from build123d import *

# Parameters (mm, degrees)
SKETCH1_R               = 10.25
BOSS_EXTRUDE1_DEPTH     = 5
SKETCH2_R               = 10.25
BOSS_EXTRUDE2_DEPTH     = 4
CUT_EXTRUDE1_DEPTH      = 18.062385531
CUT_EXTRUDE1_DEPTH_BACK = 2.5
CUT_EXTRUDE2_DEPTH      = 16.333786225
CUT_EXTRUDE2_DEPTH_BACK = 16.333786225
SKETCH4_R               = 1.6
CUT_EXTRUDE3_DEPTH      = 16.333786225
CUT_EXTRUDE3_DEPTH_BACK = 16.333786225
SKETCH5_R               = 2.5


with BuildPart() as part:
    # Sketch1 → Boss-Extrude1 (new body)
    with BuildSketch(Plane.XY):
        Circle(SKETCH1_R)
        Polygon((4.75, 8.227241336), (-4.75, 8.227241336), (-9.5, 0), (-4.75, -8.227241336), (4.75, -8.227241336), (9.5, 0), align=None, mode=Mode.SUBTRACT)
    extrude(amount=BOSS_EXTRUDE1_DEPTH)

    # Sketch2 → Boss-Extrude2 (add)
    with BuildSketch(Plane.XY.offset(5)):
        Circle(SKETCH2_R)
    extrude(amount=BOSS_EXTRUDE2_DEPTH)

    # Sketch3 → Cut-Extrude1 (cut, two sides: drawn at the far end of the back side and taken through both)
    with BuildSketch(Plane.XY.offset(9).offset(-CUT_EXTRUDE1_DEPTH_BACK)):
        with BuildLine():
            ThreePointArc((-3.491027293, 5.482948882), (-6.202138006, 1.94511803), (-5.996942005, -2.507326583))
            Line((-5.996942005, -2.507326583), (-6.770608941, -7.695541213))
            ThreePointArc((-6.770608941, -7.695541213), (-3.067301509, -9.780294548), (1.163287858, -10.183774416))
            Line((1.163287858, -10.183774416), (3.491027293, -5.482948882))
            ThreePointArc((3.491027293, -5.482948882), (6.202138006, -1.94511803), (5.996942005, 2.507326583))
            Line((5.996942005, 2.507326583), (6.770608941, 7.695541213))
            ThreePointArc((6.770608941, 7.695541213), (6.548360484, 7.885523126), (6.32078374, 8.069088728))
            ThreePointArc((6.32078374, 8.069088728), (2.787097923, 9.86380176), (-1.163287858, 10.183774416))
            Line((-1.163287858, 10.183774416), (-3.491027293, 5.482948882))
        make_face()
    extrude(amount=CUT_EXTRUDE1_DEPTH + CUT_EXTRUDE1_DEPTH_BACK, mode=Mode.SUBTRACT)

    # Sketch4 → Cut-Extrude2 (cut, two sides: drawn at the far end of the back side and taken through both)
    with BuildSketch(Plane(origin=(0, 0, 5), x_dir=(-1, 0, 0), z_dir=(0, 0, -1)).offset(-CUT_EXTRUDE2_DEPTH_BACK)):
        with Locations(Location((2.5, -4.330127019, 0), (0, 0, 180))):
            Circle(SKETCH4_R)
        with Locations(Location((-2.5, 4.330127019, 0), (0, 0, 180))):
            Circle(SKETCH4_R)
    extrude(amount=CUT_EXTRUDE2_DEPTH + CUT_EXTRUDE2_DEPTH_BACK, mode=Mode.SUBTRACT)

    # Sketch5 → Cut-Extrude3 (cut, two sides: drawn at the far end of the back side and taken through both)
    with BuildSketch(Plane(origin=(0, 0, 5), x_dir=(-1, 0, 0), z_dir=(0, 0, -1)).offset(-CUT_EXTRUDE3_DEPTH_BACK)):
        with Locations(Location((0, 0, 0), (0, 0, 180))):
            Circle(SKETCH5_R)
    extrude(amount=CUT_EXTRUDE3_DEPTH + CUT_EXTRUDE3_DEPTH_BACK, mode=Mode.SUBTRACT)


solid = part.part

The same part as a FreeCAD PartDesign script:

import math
import FreeCAD as App
import Part
import Sketcher
Q = App.Units.Quantity

doc = App.newDocument("Part")
body = doc.addObject("PartDesign::Body", "Body")

# Sketch on XY plane
sketch1 = body.newObject("Sketcher::SketchObject", "Sketch")
sketch1.AttachmentSupport = (doc.getObject("XY_Plane"), [""])
sketch1.MapMode = "FlatFace"
sketch1.addGeometry(Part.Circle(App.Vector(0, 0, 0), App.Vector(0, 0, 1), 10), False)
sketch1.addGeometry(Part.LineSegment(App.Vector(-5, 8, 0), App.Vector(5, 8, 0)), False)
sketch1.addGeometry(Part.LineSegment(App.Vector(5, 8, 0), App.Vector(10, 0, 0)), False)
sketch1.addGeometry(Part.LineSegment(App.Vector(10, 0, 0), App.Vector(5, -8, 0)), False)
sketch1.addGeometry(Part.LineSegment(App.Vector(5, -8, 0), App.Vector(-5, -8, 0)), False)
sketch1.addGeometry(Part.LineSegment(App.Vector(-5, -8, 0), App.Vector(-10, 0, 0)), False)
sketch1.addGeometry(Part.LineSegment(App.Vector(-10, 0, 0), App.Vector(-5, 8, 0)), False)
sketch1.addConstraint(Sketcher.Constraint("Coincident", 1, 2, 2, 1))
sketch1.addConstraint(Sketcher.Constraint("Coincident", 2, 2, 3, 1))
sketch1.addConstraint(Sketcher.Constraint("Coincident", 3, 2, 4, 1))
sketch1.addConstraint(Sketcher.Constraint("Coincident", 4, 2, 5, 1))
sketch1.addConstraint(Sketcher.Constraint("Coincident", 5, 2, 6, 1))
sketch1.addConstraint(Sketcher.Constraint("Coincident", 6, 2, 1, 1))
sketch1.addConstraint(Sketcher.Constraint("Horizontal", 1))
sketch1.addConstraint(Sketcher.Constraint("Horizontal", 4))
sketch1.addConstraint(Sketcher.Constraint("Coincident", 0, 3, -1, 1))
sketch1.addConstraint(Sketcher.Constraint("Symmetric", 1, 2, 4, 2, -1, 1))
sketch1.addConstraint(Sketcher.Constraint("Symmetric", 2, 2, 5, 2, -1, 1))
sketch1.addConstraint(Sketcher.Constraint("PointOnObject", 2, 2, -1))
sketch1.addConstraint(Sketcher.Constraint("Parallel", 3, 6))
sketch1.addConstraint(Sketcher.Constraint("Vertical", 1, 2, 3, 2))
sketch1.addConstraint(Sketcher.Constraint("Diameter", 0, Q("20.5 mm")))
sketch1.addConstraint(Sketcher.Constraint("Angle", 2, Q("-60 deg")))
sketch1.addConstraint(Sketcher.Constraint("DistanceX", 1, 1, 1, 2, Q("9.5 mm")))
sketch1.addConstraint(Sketcher.Constraint("DistanceX", 5, 2, 2, 2, Q("19 mm")))
pad1 = body.newObject("PartDesign::Pad", "Pad")
pad1.Profile = sketch1
pad1.Length = 5

# Sketch on XY plane
sketch2 = body.newObject("Sketcher::SketchObject", "Sketch001")
sketch2.AttachmentSupport = (doc.getObject("XY_Plane"), [""])
sketch2.MapMode = "FlatFace"
sketch2.AttachmentOffset = App.Placement(App.Vector(0, 0, 5), App.Rotation())
sketch2.addGeometry(Part.Circle(App.Vector(0, 0, 0), App.Vector(0, 0, 1), 10), False)
sketch2.addConstraint(Sketcher.Constraint("Coincident", 0, 3, -1, 1))
sketch2.addConstraint(Sketcher.Constraint("Diameter", 0, Q("20.5 mm")))
pad2 = body.newObject("PartDesign::Pad", "Pad001")
pad2.Profile = sketch2
pad2.Length = 4

# Sketch on XY plane
sketch3 = body.newObject("Sketcher::SketchObject", "Sketch002")
sketch3.AttachmentSupport = (doc.getObject("XY_Plane"), [""])
sketch3.MapMode = "FlatFace"
sketch3.AttachmentOffset = App.Placement(App.Vector(0, 0, 9), App.Rotation())
sketch3.addGeometry(Part.ArcOfCircle(Part.Circle(App.Vector(0, 0, 0), App.Vector(0, 0, 1), 6.5), math.radians(122), math.radians(203)), False)
sketch3.addGeometry(Part.LineSegment(App.Vector(-6, -2.5, 0), App.Vector(-6.8, -7.7, 0)), False)
sketch3.addGeometry(Part.ArcOfCircle(Part.Circle(App.Vector(0, 0, 0), App.Vector(0, 0, 1), 10.3), math.radians(-131), math.radians(-83)), False)
sketch3.addGeometry(Part.LineSegment(App.Vector(1.2, -10.2, 0), App.Vector(3.5, -5.5, 0)), False)
sketch3.addGeometry(Part.ArcOfCircle(Part.Circle(App.Vector(0, 0, 0), App.Vector(0, 0, 1), 6.5), math.radians(-58), math.radians(23)), False)
sketch3.addGeometry(Part.LineSegment(App.Vector(6, 2.5, 0), App.Vector(6.8, 7.7, 0)), False)
sketch3.addGeometry(Part.ArcOfCircle(Part.Circle(App.Vector(0, 0, 0), App.Vector(0, 0, 1), 10.2), math.radians(48.66), math.radians(51.93)), False)
sketch3.addGeometry(Part.ArcOfCircle(Part.Circle(App.Vector(0, 0, 0), App.Vector(0, 0, 1), 10.2), math.radians(52), math.radians(97)), False)
sketch3.addGeometry(Part.LineSegment(App.Vector(-1.2, 10.2, 0), App.Vector(-3.5, 5.5, 0)), False)
sketch3.addConstraint(Sketcher.Constraint("Coincident", 0, 2, 1, 1))
sketch3.addConstraint(Sketcher.Constraint("Coincident", 1, 2, 2, 1))
sketch3.addConstraint(Sketcher.Constraint("Coincident", 2, 2, 3, 1))
sketch3.addConstraint(Sketcher.Constraint("Coincident", 3, 2, 4, 1))
sketch3.addConstraint(Sketcher.Constraint("Coincident", 4, 2, 5, 1))
sketch3.addConstraint(Sketcher.Constraint("Coincident", 5, 2, 6, 1))
sketch3.addConstraint(Sketcher.Constraint("Tangent", 6, 2, 7, 1))
sketch3.addConstraint(Sketcher.Constraint("Coincident", 7, 2, 8, 1))
sketch3.addConstraint(Sketcher.Constraint("Coincident", 8, 2, 0, 1))
sketch3.addConstraint(Sketcher.Constraint("Coincident", 0, 3, -1, 1))
sketch3.addConstraint(Sketcher.Constraint("Coincident", 2, 3, -1, 1))
sketch3.addConstraint(Sketcher.Constraint("Coincident", 4, 3, -1, 1))
sketch3.addConstraint(Sketcher.Constraint("Coincident", 6, 3, -1, 1))
sketch3.addConstraint(Sketcher.Constraint("Equal", 0, 4))
sketch3.addConstraint(Sketcher.Constraint("Equal", 2, 6))
sketch3.addConstraint(Sketcher.Constraint("Equal", 6, 7))
sketch3.addConstraint(Sketcher.Constraint("Parallel", 1, 5))
sketch3.addConstraint(Sketcher.Constraint("Parallel", 3, 8))
sketch3.addConstraint(Sketcher.Constraint("Equal", 1, 3))
sketch3.addConstraint(Sketcher.Constraint("Equal", 3, 5))
sketch3.addConstraint(Sketcher.Constraint("Equal", 5, 8))
sketch3.addConstraint(Sketcher.Constraint("Radius", 0, Q("6.5 mm")))
sketch3.addConstraint(Sketcher.Constraint("Radius", 2, Q("10.25 mm")))
sketch3.addConstraint(Sketcher.Constraint("DistanceX", 1, 2, -1, 1, Q("6.770609 mm")))
sketch3.addConstraint(Sketcher.Constraint("DistanceY", 3, 2, -1, 1, Q("5.482949 mm")))
sketch3.addConstraint(Sketcher.Constraint("DistanceY", -1, 1, 6, 2, Q("8.069089 mm")))
sketch3.addConstraint(Sketcher.Constraint("DistanceX", 2, 2, 3, 2, Q("2.327739 mm")))
pocket1 = body.newObject("PartDesign::Pocket", "Pocket")
pocket1.Profile = sketch3
pocket1.Type = "TwoLengths"
pocket1.Length = 18.062386
pocket1.Length2 = 2.5
pocket1.Reversed = True

# Sketch on XY plane
sketch4 = body.newObject("Sketcher::SketchObject", "Sketch003")
sketch4.AttachmentSupport = (doc.getObject("XY_Plane"), [""])
sketch4.MapMode = "FlatFace"
sketch4.AttachmentOffset = App.Placement(App.Vector(0, 0, 5), App.Rotation())
sketch4.addGeometry(Part.Circle(App.Vector(-2.5, -4.3, 0), App.Vector(0, 0, 1), 1.6), False)
sketch4.addGeometry(Part.Circle(App.Vector(2.5, 4.3, 0), App.Vector(0, 0, 1), 1.6), False)
sketch4.addConstraint(Sketcher.Constraint("Equal", 0, 1))
sketch4.addConstraint(Sketcher.Constraint("Symmetric", 0, 3, 1, 3, -1, 1))
sketch4.addConstraint(Sketcher.Constraint("Diameter", 0, Q("3.2 mm")))
sketch4.addConstraint(Sketcher.Constraint("DistanceX", 0, 3, 1, 3, Q("5 mm")))
sketch4.addConstraint(Sketcher.Constraint("DistanceY", 0, 3, -1, 1, Q("4.330127 mm")))
pocket2 = body.newObject("PartDesign::Pocket", "Pocket001")
pocket2.Profile = sketch4
pocket2.Type = "ThroughAll"
pocket2.Midplane = True

# Sketch on XY plane
sketch5 = body.newObject("Sketcher::SketchObject", "Sketch004")
sketch5.AttachmentSupport = (doc.getObject("XY_Plane"), [""])
sketch5.MapMode = "FlatFace"
sketch5.AttachmentOffset = App.Placement(App.Vector(0, 0, 5), App.Rotation())
sketch5.addGeometry(Part.Circle(App.Vector(0, 0, 0), App.Vector(0, 0, 1), 2.5), False)
sketch5.addConstraint(Sketcher.Constraint("Coincident", 0, 3, -1, 1))
sketch5.addConstraint(Sketcher.Constraint("Diameter", 0, Q("5 mm")))
pocket3 = body.newObject("PartDesign::Pocket", "Pocket002")
pocket3.Profile = sketch5
pocket3.Type = "ThroughAll"
pocket3.Midplane = True

doc.recompute()
